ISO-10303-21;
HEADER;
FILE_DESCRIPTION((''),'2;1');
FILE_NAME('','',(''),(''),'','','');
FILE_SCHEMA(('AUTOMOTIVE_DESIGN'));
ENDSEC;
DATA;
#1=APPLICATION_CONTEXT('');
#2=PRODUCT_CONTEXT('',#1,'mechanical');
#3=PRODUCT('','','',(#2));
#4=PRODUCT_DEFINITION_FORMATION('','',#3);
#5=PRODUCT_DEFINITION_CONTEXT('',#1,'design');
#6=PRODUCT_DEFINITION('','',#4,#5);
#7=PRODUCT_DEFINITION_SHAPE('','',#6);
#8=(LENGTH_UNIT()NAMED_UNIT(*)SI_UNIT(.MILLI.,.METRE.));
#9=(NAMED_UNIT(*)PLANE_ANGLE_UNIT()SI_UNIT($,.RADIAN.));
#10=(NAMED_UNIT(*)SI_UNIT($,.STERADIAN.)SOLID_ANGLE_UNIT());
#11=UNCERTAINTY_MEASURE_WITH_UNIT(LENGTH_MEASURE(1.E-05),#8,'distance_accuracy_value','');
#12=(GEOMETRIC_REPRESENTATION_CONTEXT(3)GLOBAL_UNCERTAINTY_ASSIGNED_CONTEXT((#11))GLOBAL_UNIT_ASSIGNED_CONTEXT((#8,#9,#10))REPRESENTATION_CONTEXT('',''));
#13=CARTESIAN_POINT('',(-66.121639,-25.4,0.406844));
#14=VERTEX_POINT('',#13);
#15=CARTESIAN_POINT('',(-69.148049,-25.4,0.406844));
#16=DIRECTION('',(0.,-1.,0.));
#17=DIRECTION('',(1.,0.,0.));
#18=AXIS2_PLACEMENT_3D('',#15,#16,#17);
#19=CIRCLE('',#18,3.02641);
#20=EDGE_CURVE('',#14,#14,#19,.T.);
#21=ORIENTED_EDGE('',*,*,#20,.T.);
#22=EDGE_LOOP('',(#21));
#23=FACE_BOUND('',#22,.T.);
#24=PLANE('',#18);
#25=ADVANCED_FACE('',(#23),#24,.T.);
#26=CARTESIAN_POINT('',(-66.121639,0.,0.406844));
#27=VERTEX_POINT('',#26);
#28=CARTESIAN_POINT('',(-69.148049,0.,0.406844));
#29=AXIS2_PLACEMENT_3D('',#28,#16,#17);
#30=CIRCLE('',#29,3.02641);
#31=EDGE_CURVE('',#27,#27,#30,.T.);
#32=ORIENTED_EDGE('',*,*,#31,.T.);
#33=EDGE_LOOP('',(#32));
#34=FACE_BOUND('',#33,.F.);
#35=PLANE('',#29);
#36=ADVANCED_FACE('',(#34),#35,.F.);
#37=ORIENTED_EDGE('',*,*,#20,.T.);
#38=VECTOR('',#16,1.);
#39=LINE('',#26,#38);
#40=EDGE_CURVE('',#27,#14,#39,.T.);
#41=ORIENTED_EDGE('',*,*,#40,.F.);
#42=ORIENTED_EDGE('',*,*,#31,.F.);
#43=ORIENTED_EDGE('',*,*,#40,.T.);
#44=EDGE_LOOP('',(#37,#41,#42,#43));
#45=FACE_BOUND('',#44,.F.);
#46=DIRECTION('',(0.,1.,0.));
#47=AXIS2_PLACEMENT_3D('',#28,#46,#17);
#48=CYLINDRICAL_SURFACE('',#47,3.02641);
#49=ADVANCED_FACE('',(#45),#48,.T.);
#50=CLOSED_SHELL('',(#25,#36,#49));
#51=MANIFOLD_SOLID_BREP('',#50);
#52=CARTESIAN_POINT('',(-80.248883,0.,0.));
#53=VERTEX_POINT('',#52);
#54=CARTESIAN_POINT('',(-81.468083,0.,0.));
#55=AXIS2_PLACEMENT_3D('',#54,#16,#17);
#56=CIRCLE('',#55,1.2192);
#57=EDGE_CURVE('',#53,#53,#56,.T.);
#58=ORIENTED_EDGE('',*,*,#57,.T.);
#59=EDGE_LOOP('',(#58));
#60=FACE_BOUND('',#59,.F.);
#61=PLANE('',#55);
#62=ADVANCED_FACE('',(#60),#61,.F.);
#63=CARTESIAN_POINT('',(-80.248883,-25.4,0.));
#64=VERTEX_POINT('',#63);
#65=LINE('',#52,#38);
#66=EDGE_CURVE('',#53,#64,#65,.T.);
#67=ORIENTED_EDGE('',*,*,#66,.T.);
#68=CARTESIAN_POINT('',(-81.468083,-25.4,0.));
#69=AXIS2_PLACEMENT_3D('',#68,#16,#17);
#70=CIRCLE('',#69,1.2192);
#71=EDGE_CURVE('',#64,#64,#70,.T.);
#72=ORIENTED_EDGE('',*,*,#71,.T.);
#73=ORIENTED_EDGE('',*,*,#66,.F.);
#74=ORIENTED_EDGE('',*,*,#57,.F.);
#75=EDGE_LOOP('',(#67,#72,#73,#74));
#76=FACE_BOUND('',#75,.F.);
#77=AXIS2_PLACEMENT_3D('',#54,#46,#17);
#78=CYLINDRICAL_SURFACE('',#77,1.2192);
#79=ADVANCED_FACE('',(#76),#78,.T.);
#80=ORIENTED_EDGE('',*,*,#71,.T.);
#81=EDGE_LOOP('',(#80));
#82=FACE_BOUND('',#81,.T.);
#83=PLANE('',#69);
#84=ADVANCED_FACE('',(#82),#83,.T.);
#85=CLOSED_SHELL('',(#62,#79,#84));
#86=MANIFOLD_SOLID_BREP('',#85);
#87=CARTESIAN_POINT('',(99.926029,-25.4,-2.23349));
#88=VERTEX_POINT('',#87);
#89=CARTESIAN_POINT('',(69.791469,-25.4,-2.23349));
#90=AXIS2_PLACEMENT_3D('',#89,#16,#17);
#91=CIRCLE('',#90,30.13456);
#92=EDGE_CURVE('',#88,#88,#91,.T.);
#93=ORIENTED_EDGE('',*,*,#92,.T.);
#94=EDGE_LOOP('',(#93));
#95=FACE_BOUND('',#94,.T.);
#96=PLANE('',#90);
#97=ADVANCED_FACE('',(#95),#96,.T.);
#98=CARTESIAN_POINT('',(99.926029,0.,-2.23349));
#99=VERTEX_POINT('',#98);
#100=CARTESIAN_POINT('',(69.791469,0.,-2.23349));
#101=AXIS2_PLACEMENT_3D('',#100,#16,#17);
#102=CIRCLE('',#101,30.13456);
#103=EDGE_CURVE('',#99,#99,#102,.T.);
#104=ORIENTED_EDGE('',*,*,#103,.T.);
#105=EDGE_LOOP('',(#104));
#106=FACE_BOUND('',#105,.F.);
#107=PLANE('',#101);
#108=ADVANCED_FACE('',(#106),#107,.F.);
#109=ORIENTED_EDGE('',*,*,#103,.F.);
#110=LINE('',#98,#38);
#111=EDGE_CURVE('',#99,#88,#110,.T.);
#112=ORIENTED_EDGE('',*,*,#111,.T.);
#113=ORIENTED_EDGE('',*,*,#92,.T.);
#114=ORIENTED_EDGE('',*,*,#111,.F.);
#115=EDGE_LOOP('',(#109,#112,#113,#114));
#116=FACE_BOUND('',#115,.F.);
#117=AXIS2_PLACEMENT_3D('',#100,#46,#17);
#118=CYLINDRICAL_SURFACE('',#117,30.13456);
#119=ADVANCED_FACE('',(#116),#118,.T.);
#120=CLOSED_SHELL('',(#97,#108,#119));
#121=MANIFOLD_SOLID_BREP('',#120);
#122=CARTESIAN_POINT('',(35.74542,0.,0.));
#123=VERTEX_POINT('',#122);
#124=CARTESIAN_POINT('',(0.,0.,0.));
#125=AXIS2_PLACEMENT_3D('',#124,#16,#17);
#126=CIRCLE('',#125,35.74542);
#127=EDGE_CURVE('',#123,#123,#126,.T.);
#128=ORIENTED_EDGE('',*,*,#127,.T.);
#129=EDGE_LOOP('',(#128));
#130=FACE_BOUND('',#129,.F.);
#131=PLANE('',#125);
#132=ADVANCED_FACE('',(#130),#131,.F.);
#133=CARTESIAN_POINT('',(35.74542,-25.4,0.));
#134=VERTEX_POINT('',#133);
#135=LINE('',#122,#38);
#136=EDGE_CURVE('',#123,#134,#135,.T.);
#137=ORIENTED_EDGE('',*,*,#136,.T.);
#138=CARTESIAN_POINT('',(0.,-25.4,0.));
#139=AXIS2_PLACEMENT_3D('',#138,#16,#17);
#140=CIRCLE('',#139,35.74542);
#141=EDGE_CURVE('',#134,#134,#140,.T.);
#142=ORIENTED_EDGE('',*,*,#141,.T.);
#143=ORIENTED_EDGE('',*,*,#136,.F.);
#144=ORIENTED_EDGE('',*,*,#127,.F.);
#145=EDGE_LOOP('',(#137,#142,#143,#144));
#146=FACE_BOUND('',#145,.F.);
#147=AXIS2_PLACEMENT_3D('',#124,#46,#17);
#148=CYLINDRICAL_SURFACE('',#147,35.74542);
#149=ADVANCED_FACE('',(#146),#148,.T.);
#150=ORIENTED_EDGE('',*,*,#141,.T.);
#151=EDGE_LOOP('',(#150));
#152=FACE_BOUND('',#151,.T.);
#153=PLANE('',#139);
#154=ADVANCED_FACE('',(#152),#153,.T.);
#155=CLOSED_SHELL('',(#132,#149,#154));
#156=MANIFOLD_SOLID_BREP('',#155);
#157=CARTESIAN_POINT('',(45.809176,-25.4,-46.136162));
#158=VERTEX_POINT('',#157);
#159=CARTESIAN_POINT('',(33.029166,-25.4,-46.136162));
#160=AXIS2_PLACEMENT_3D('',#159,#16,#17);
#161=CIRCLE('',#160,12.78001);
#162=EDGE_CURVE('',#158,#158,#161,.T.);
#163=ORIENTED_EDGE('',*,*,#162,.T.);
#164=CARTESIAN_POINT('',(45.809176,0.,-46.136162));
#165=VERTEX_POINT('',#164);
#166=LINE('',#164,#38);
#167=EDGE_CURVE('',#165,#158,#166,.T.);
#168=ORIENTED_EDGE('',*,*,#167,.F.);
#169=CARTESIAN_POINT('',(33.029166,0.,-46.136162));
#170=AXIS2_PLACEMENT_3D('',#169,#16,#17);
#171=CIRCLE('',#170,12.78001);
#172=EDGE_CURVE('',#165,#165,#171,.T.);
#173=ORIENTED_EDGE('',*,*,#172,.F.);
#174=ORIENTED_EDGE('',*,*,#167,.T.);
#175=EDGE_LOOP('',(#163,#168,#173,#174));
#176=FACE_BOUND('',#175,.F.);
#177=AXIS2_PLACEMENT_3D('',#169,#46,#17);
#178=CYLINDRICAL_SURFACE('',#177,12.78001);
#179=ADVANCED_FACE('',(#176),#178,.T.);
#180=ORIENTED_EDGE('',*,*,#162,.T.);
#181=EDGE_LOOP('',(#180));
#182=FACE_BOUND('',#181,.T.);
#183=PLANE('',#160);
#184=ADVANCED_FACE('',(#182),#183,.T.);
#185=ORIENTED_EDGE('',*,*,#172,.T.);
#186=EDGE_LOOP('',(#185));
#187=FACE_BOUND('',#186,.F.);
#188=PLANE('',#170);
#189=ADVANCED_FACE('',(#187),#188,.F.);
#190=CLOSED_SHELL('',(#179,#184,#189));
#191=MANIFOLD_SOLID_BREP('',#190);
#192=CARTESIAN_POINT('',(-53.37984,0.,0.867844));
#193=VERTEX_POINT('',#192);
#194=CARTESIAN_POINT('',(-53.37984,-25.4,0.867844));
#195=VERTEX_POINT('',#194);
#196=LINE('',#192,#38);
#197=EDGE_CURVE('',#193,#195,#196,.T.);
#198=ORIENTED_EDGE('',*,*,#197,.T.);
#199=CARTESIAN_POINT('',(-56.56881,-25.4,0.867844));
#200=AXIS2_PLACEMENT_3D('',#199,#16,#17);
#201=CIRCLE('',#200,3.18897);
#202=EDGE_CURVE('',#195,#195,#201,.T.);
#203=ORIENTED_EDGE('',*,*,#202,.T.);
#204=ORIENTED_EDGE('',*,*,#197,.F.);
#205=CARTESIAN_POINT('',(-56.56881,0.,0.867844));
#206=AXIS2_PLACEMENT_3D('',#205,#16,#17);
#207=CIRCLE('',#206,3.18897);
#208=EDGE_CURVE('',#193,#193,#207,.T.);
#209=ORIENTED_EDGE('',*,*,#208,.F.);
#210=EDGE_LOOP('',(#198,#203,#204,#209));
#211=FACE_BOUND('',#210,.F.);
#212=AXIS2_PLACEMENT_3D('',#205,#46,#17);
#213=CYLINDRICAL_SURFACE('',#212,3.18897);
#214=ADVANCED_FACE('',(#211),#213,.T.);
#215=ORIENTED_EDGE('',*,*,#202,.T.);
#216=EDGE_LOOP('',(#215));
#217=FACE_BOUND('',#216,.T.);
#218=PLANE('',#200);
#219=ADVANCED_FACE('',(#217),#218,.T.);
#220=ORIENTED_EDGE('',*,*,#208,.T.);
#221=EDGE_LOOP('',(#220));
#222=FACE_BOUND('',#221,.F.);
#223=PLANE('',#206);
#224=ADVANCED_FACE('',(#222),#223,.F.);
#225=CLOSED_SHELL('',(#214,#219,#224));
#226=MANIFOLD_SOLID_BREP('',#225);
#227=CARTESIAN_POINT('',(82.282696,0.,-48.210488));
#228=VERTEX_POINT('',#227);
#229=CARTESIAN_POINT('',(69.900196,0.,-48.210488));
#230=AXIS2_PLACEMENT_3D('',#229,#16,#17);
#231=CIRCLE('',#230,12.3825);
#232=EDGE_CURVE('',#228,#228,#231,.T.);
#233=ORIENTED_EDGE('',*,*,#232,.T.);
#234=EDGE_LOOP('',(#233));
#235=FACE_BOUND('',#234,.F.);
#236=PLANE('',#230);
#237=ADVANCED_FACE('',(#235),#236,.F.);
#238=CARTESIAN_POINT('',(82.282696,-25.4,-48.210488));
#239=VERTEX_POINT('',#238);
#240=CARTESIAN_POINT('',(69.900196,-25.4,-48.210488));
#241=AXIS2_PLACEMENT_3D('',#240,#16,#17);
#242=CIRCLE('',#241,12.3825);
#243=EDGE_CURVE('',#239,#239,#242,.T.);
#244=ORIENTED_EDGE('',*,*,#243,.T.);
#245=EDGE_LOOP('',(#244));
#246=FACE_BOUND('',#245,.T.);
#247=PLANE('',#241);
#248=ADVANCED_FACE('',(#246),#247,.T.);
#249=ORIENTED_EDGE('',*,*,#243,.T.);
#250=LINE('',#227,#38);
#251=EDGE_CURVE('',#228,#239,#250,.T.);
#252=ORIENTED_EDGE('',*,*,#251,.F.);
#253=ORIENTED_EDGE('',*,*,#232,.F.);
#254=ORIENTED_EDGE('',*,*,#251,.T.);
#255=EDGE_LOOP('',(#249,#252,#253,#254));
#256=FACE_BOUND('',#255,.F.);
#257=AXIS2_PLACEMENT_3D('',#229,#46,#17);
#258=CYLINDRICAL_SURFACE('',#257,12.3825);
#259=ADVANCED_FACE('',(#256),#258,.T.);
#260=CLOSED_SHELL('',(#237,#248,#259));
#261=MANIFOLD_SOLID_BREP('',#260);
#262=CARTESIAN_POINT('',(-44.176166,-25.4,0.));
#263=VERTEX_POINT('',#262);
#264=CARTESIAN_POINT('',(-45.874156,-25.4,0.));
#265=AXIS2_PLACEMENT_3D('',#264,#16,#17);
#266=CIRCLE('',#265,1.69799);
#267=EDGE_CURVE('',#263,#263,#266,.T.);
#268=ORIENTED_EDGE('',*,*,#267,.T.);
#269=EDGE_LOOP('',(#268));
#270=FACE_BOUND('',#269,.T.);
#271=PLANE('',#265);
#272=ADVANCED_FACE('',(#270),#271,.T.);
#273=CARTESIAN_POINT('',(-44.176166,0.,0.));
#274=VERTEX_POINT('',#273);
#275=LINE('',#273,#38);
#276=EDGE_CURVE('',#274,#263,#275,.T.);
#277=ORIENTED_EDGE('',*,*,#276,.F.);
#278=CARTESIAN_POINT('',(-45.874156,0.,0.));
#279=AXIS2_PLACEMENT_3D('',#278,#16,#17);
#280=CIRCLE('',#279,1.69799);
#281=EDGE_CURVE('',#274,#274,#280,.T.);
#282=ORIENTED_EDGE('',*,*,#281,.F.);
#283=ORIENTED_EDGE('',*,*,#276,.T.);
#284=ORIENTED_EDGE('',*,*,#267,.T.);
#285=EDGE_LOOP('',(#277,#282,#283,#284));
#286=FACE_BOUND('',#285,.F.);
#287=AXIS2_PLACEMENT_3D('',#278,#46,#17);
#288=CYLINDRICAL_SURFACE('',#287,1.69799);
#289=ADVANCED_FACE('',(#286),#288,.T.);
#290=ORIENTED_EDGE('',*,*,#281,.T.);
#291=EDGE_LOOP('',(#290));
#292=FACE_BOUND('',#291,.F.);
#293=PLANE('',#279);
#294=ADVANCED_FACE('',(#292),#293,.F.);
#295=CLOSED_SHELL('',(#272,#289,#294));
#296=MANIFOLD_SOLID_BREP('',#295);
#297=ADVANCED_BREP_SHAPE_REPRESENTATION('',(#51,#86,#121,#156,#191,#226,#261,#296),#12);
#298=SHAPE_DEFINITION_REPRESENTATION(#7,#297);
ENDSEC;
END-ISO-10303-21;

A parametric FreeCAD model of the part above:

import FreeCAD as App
import Part
import Sketcher
Q = App.Units.Quantity

doc = App.newDocument("Part")
body = doc.addObject("PartDesign::Body", "Body")
body.AllowCompound = True

# Sketch on XZ plane
sketch1 = body.newObject("Sketcher::SketchObject", "Sketch")
sketch1.AttachmentSupport = (doc.getObject("XZ_Plane"), [""])
sketch1.MapMode = "FlatFace"
sketch1.addGeometry(Part.Circle(App.Vector(-81.5, 0, 0), App.Vector(0, 0, 1), 1.2), False)
sketch1.addGeometry(Part.Circle(App.Vector(-69.1, 0.4, 0), App.Vector(0, 0, 1), 3), False)
sketch1.addGeometry(Part.Circle(App.Vector(-56.6, 0.9, 0), App.Vector(0, 0, 1), 3.2), False)
sketch1.addGeometry(Part.Circle(App.Vector(-45.9, 0, 0), App.Vector(0, 0, 1), 1.7), False)
sketch1.addGeometry(Part.Circle(App.Vector(0, 0, 0), App.Vector(0, 0, 1), 35.7), False)
sketch1.addGeometry(Part.Circle(App.Vector(69.8, -2.2, 0), App.Vector(0, 0, 1), 30.1), False)
sketch1.addGeometry(Part.Circle(App.Vector(33, -46.1, 0), App.Vector(0, 0, 1), 12.8), False)
sketch1.addGeometry(Part.Circle(App.Vector(69.9, -48.2, 0), App.Vector(0, 0, 1), 12.4), False)
sketch1.addConstraint(Sketcher.Constraint("Coincident", 4, 3, -1, 1))
sketch1.addConstraint(Sketcher.Constraint("PointOnObject", 0, 3, -1))
sketch1.addConstraint(Sketcher.Constraint("PointOnObject", 3, 3, -1))
sketch1.addConstraint(Sketcher.Constraint("Diameter", 0, Q("0.096 in")))
sketch1.addConstraint(Sketcher.Constraint("Diameter", 7, Q("0.975 in")))
sketch1.addConstraint(Sketcher.Constraint("Diameter", 1, Q("0.2383 in")))
sketch1.addConstraint(Sketcher.Constraint("Diameter", 2, Q("0.2511 in")))
sketch1.addConstraint(Sketcher.Constraint("Diameter", 3, Q("0.1337 in")))
sketch1.addConstraint(Sketcher.Constraint("Diameter", 4, Q("2.8146 in")))
sketch1.addConstraint(Sketcher.Constraint("Diameter", 5, Q("2.3728 in")))
sketch1.addConstraint(Sketcher.Constraint("Diameter", 6, Q("1.0063 in")))
sketch1.addConstraint(Sketcher.Constraint("DistanceY", 1, 3, 2, 3, 0.461))
sketch1.addConstraint(Sketcher.Constraint("DistanceX", 1, 3, -1, 1, 69.148049))
sketch1.addConstraint(Sketcher.Constraint("DistanceX", 2, 3, -1, 1, 56.56881))
sketch1.addConstraint(Sketcher.Constraint("DistanceX", -1, 1, 5, 3, 69.791469))
sketch1.addConstraint(Sketcher.Constraint("DistanceY", 5, 3, -1, 1, 2.23349))
sketch1.addConstraint(Sketcher.Constraint("DistanceX", 0, 3, 5, 3, 151.259552))
sketch1.addConstraint(Sketcher.Constraint("DistanceY", 6, 3, 5, 3, 43.902672))
sketch1.addConstraint(Sketcher.Constraint("DistanceX", 6, 3, 7, 3, 36.87103))
sketch1.addConstraint(Sketcher.Constraint("DistanceX", 3, 3, 7, 3, 115.774352))
sketch1.addConstraint(Sketcher.Constraint("DistanceY", 7, 3, 2, 3, 49.078332))
sketch1.addConstraint(Sketcher.Constraint("DistanceY", -1, 1, 1, 3, 0.406844))
sketch1.addConstraint(Sketcher.Constraint("DistanceX", 3, 3, -1, 1, 45.874156))
pad1 = body.newObject("PartDesign::Pad", "Pad")
pad1.Profile = sketch1
pad1.Length = Q("1 in")

doc.recompute()
